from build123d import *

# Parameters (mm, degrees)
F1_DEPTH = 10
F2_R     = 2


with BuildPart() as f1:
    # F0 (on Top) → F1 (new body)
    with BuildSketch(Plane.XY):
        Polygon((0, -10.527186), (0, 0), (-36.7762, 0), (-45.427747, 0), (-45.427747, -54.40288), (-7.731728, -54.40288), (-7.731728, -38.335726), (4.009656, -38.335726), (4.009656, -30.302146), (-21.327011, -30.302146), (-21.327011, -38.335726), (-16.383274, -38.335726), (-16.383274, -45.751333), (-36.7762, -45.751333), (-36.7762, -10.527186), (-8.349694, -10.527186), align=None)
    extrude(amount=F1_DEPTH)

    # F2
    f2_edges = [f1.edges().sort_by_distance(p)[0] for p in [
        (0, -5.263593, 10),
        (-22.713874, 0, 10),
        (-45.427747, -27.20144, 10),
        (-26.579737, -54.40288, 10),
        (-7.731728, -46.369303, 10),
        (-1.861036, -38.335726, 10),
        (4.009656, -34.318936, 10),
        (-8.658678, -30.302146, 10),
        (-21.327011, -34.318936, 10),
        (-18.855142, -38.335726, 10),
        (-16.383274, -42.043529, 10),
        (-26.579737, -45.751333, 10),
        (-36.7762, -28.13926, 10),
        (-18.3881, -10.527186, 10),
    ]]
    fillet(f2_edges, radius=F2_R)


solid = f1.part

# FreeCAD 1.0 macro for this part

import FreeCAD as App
import Part
import Sketcher
from FreeCAD import Vector
Q = App.Units.Quantity


def edges_at(feature, points):
    """Names of the edges that pass closest to the given points."""
    edges = feature.Shape.Edges
    near = lambda p: min(range(len(edges)), key=lambda i: edges[i].distToShape(Part.Vertex(*p))[0])
    return sorted({f"Edge{near(p) + 1}" for p in points})


def add_polygon(sketch, points):
    """Adds a closed chain of lines whose ends are joined by coincident constraints."""
    first, n = sketch.GeometryCount, len(points)
    for a, b in zip(points, points[1:] + points[:1]):
        sketch.addGeometry(Part.LineSegment(App.Vector(*a, 0), App.Vector(*b, 0)), False)
    for i in range(n):
        sketch.addConstraint(Sketcher.Constraint("Coincident", first + i, 2, first + (i + 1) % n, 1))

doc = App.newDocument("Part")
body = doc.addObject("PartDesign::Body", "Body")

# Sketch on XY plane
sketch1 = body.newObject("Sketcher::SketchObject", "Sketch")
sketch1.AttachmentSupport = (doc.getObject("XY_Plane"), [""])
sketch1.MapMode = "FlatFace"
add_polygon(sketch1, [(0, -10.5), (0, 0), (-45.4, 0), (-45.4, -54.4), (-7.7, -54.4), (-7.7, -38.3), (4, -38.3), (4, -30.3), (-21.3, -30.3), (-21.3, -38.3), (-16.4, -38.3), (-16.4, -45.8), (-36.8, -45.8), (-36.8, -10.5)])  # lines 0-13
sketch1.addConstraint(Sketcher.Constraint("Vertical", 0))
sketch1.addConstraint(Sketcher.Constraint("Horizontal", 1))
sketch1.addConstraint(Sketcher.Constraint("Vertical", 2))
sketch1.addConstraint(Sketcher.Constraint("Horizontal", 3))
sketch1.addConstraint(Sketcher.Constraint("Vertical", 4))
sketch1.addConstraint(Sketcher.Constraint("Horizontal", 5))
sketch1.addConstraint(Sketcher.Constraint("Vertical", 6))
sketch1.addConstraint(Sketcher.Constraint("Horizontal", 7))
sketch1.addConstraint(Sketcher.Constraint("Vertical", 8))
sketch1.addConstraint(Sketcher.Constraint("Horizontal", 9))
sketch1.addConstraint(Sketcher.Constraint("Vertical", 10))
sketch1.addConstraint(Sketcher.Constraint("Horizontal", 11))
sketch1.addConstraint(Sketcher.Constraint("Vertical", 12))
sketch1.addConstraint(Sketcher.Constraint("Horizontal", 13))
sketch1.addConstraint(Sketcher.Constraint("Coincident", 0, 2, -1, 1))
sketch1.addConstraint(Sketcher.Constraint("Horizontal", 5, 2, 8, 2))
sketch1.addConstraint(Sketcher.Constraint("DistanceX", 13, 1, 13, 2, Q("36.7762 mm")))
sketch1.addConstraint(Sketcher.Constraint("DistanceX", 3, 1, 3, 2, Q("37.696019 mm")))
sketch1.addConstraint(Sketcher.Constraint("DistanceY", 2, 2, 2, 1, Q("54.40288 mm")))
sketch1.addConstraint(Sketcher.Constraint("DistanceY", 6, 1, 6, 2, Q("8.03358 mm")))
sketch1.addConstraint(Sketcher.Constraint("DistanceX", 1, 2, 1, 1, Q("45.427747 mm")))
sketch1.addConstraint(Sketcher.Constraint("DistanceX", 5, 1, 5, 2, Q("11.741384 mm")))
sketch1.addConstraint(Sketcher.Constraint("DistanceX", 7, 2, 7, 1, Q("25.336667 mm")))
sketch1.addConstraint(Sketcher.Constraint("DistanceX", 9, 1, 9, 2, Q("4.943737 mm")))
sketch1.addConstraint(Sketcher.Constraint("DistanceY", 0, 1, 0, 2, Q("10.527186 mm")))
sketch1.addConstraint(Sketcher.Constraint("DistanceY", 4, 1, 4, 2, Q("16.067154 mm")))
sketch1.addConstraint(Sketcher.Constraint("DistanceY", 10, 2, 10, 1, Q("7.415607 mm")))
pad1 = body.newObject("PartDesign::Pad", "Pad")
pad1.Profile = sketch1
pad1.Length = 10
doc.recompute()

fillet = body.newObject("PartDesign::Fillet", "Fillet")
fillet.Base = (pad1, edges_at(pad1, [
    (0, -5.264, 10),
    (-22.714, 0, 10),
    (-45.428, -27.201, 10),
    (-26.58, -54.403, 10),
    (-7.732, -46.369, 10),
    (-1.861, -38.336, 10),
    (4.01, -34.319, 10),
    (-8.659, -30.302, 10),
    (-21.327, -34.319, 10),
    (-18.855, -38.336, 10),
    (-16.383, -42.044, 10),
    (-26.58, -45.751, 10),
    (-36.776, -28.139, 10),
    (-18.388, -10.527, 10),
]))
fillet.Radius = 2

doc.recompute()
